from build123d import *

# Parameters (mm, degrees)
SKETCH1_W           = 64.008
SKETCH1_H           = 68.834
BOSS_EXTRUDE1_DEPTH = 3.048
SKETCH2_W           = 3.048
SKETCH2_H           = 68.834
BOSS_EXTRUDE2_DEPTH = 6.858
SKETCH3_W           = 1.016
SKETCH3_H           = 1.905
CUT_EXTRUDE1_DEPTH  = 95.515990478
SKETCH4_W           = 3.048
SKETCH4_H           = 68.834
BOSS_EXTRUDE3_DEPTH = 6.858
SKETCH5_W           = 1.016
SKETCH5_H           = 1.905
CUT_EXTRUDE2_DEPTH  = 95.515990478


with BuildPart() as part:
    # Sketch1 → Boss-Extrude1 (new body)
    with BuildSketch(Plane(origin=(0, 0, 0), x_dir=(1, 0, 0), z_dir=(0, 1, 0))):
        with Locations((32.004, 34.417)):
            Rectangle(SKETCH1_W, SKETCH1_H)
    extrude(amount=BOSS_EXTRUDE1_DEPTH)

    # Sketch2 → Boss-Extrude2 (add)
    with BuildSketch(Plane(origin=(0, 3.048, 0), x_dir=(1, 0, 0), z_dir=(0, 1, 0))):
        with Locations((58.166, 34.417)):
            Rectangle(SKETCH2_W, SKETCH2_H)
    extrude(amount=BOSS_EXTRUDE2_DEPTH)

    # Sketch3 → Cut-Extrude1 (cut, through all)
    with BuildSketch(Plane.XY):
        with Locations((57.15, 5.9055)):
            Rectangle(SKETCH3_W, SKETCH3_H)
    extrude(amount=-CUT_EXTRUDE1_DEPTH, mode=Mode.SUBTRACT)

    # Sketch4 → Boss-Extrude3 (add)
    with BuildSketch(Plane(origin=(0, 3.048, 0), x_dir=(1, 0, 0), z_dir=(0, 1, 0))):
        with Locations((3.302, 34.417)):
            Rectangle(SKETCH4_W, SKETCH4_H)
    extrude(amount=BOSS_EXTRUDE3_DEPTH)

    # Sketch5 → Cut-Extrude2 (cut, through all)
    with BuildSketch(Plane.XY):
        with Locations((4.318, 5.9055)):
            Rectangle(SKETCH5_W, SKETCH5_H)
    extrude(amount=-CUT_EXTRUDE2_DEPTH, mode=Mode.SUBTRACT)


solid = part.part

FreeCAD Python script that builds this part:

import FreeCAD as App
import Part
import Sketcher

V = App.Vector
Q = App.Units.Quantity


def add_polygon(sketch, points):
    """Adds a closed chain of lines whose ends are joined by coincident constraints."""
    first, n = sketch.GeometryCount, len(points)
    for a, b in zip(points, points[1:] + points[:1]):
        sketch.addGeometry(Part.LineSegment(App.Vector(*a, 0), App.Vector(*b, 0)), False)
    for i in range(n):
        sketch.addConstraint(Sketcher.Constraint("Coincident", first + i, 2, first + (i + 1) % n, 1))

doc = App.newDocument("Part")
body = doc.addObject("PartDesign::Body", "Body")

# Sketch on XZ plane
sketch1 = body.newObject("Sketcher::SketchObject", "Sketch")
sketch1.AttachmentSupport = (doc.getObject("XZ_Plane"), [""])
sketch1.MapMode = "FlatFace"
add_polygon(sketch1, [(0, -69), (0, 0), (64, 0), (64, -69)])  # lines 0-3
sketch1.addConstraint([
    Sketcher.Constraint("Vertical", 0),
    Sketcher.Constraint("Horizontal", 1),
    Sketcher.Constraint("Vertical", 2),
    Sketcher.Constraint("Horizontal", 3),
    Sketcher.Constraint("Coincident", 0, 2, -1, 1),
    Sketcher.Constraint("DistanceX", 1, 1, 1, 2, Q("2.52 in")),
    Sketcher.Constraint("DistanceY", 0, 1, 0, 2, Q("2.71 in")),
])
pad1 = body.newObject("PartDesign::Pad", "Pad")
pad1.Profile = sketch1
pad1.Length = Q("0.12 in")
pad1.Reversed = True

# Sketch on XZ plane
sketch2 = body.newObject("Sketcher::SketchObject", "Sketch001")
sketch2.AttachmentSupport = (doc.getObject("XZ_Plane"), [""])
sketch2.MapMode = "FlatFace"
sketch2.AttachmentOffset = App.Placement(V(0, 0, -0.12 * 25.4), App.Rotation())
add_polygon(sketch2, [(56.6, -68.8), (56.6, 0), (59.7, 0), (59.7, -68.8)])  # lines 0-3
sketch2.addConstraint([
    Sketcher.Constraint("Vertical", 0),
    Sketcher.Constraint("Horizontal", 1),
    Sketcher.Constraint("Vertical", 2),
    Sketcher.Constraint("Horizontal", 3),
    Sketcher.Constraint("PointOnObject", 0, 2, -1),
    Sketcher.Constraint("DistanceX", 1, 1, 1, 2, Q("0.12 in")),
    Sketcher.Constraint("DistanceY", 0, 1, 0, 2, Q("2.71 in")),
    Sketcher.Constraint("DistanceX", -1, 1, 0, 2, Q("2.23 in")),
])
pad2 = body.newObject("PartDesign::Pad", "Pad001")
pad2.Profile = sketch2
pad2.Length = Q("0.27 in")
pad2.Reversed = True

# Sketch on XY plane
sketch3 = body.newObject("Sketcher::SketchObject", "Sketch002")
sketch3.AttachmentSupport = (doc.getObject("XY_Plane"), [""])
sketch3.MapMode = "FlatFace"
add_polygon(sketch3, [(56.6, 6.9), (56.6, 5), (57.7, 5), (57.7, 6.9)])  # lines 0-3
sketch3.addConstraint([
    Sketcher.Constraint("Vertical", 0),
    Sketcher.Constraint("Horizontal", 1),
    Sketcher.Constraint("Vertical", 2),
    Sketcher.Constraint("Horizontal", 3),
    Sketcher.Constraint("DistanceX", 1, 1, 1, 2, Q("0.04 in")),
    Sketcher.Constraint("DistanceY", 0, 2, 0, 1, Q("0.075 in")),
    Sketcher.Constraint("DistanceX", -1, 1, 0, 2, Q("2.23 in")),
    Sketcher.Constraint("DistanceY", -1, 1, 2, 2, Q("0.27 in")),
])
pocket1 = body.newObject("PartDesign::Pocket", "Pocket")
pocket1.Profile = sketch3
pocket1.Type = "ThroughAll"

# Sketch on XZ plane
sketch4 = body.newObject("Sketcher::SketchObject", "Sketch003")
sketch4.AttachmentSupport = (doc.getObject("XZ_Plane"), [""])
sketch4.MapMode = "FlatFace"
sketch4.AttachmentOffset = App.Placement(V(0, 0, -0.12 * 25.4), App.Rotation())
add_polygon(sketch4, [(1.8, -68.8), (1.8, 0), (4.8, 0), (4.8, -68.8)])  # lines 0-3
sketch4.addConstraint([
    Sketcher.Constraint("Vertical", 0),
    Sketcher.Constraint("Horizontal", 1),
    Sketcher.Constraint("Vertical", 2),
    Sketcher.Constraint("Horizontal", 3),
    Sketcher.Constraint("PointOnObject", 0, 2, -1),
    Sketcher.Constraint("DistanceX", 1, 1, 1, 2, Q("0.12 in")),
    Sketcher.Constraint("DistanceY", 0, 1, 0, 2, Q("2.71 in")),
    Sketcher.Constraint("DistanceX", -1, 1, 0, 2, Q("0.07 in")),
])
pad3 = body.newObject("PartDesign::Pad", "Pad002")
pad3.Profile = sketch4
pad3.Length = Q("0.27 in")
pad3.Reversed = True

# Sketch on XY plane
sketch5 = body.newObject("Sketcher::SketchObject", "Sketch004")
sketch5.AttachmentSupport = (doc.getObject("XY_Plane"), [""])
sketch5.MapMode = "FlatFace"
add_polygon(sketch5, [(3.8, 6.9), (3.8, 5), (4.8, 5), (4.8, 6.9)])  # lines 0-3
sketch5.addConstraint([
    Sketcher.Constraint("Vertical", 0),
    Sketcher.Constraint("Horizontal", 1),
    Sketcher.Constraint("Vertical", 2),
    Sketcher.Constraint("Horizontal", 3),
    Sketcher.Constraint("DistanceX", 1, 1, 1, 2, Q("0.04 in")),
    Sketcher.Constraint("DistanceY", 0, 2, 0, 1, Q("0.075 in")),
    Sketcher.Constraint("DistanceX", -1, 1, 0, 2, Q("0.15 in")),
    Sketcher.Constraint("DistanceY", -1, 1, 2, 2, Q("0.27 in")),
])
pocket2 = body.newObject("PartDesign::Pocket", "Pocket001")
pocket2.Profile = sketch5
pocket2.Type = "ThroughAll"

doc.recompute()
